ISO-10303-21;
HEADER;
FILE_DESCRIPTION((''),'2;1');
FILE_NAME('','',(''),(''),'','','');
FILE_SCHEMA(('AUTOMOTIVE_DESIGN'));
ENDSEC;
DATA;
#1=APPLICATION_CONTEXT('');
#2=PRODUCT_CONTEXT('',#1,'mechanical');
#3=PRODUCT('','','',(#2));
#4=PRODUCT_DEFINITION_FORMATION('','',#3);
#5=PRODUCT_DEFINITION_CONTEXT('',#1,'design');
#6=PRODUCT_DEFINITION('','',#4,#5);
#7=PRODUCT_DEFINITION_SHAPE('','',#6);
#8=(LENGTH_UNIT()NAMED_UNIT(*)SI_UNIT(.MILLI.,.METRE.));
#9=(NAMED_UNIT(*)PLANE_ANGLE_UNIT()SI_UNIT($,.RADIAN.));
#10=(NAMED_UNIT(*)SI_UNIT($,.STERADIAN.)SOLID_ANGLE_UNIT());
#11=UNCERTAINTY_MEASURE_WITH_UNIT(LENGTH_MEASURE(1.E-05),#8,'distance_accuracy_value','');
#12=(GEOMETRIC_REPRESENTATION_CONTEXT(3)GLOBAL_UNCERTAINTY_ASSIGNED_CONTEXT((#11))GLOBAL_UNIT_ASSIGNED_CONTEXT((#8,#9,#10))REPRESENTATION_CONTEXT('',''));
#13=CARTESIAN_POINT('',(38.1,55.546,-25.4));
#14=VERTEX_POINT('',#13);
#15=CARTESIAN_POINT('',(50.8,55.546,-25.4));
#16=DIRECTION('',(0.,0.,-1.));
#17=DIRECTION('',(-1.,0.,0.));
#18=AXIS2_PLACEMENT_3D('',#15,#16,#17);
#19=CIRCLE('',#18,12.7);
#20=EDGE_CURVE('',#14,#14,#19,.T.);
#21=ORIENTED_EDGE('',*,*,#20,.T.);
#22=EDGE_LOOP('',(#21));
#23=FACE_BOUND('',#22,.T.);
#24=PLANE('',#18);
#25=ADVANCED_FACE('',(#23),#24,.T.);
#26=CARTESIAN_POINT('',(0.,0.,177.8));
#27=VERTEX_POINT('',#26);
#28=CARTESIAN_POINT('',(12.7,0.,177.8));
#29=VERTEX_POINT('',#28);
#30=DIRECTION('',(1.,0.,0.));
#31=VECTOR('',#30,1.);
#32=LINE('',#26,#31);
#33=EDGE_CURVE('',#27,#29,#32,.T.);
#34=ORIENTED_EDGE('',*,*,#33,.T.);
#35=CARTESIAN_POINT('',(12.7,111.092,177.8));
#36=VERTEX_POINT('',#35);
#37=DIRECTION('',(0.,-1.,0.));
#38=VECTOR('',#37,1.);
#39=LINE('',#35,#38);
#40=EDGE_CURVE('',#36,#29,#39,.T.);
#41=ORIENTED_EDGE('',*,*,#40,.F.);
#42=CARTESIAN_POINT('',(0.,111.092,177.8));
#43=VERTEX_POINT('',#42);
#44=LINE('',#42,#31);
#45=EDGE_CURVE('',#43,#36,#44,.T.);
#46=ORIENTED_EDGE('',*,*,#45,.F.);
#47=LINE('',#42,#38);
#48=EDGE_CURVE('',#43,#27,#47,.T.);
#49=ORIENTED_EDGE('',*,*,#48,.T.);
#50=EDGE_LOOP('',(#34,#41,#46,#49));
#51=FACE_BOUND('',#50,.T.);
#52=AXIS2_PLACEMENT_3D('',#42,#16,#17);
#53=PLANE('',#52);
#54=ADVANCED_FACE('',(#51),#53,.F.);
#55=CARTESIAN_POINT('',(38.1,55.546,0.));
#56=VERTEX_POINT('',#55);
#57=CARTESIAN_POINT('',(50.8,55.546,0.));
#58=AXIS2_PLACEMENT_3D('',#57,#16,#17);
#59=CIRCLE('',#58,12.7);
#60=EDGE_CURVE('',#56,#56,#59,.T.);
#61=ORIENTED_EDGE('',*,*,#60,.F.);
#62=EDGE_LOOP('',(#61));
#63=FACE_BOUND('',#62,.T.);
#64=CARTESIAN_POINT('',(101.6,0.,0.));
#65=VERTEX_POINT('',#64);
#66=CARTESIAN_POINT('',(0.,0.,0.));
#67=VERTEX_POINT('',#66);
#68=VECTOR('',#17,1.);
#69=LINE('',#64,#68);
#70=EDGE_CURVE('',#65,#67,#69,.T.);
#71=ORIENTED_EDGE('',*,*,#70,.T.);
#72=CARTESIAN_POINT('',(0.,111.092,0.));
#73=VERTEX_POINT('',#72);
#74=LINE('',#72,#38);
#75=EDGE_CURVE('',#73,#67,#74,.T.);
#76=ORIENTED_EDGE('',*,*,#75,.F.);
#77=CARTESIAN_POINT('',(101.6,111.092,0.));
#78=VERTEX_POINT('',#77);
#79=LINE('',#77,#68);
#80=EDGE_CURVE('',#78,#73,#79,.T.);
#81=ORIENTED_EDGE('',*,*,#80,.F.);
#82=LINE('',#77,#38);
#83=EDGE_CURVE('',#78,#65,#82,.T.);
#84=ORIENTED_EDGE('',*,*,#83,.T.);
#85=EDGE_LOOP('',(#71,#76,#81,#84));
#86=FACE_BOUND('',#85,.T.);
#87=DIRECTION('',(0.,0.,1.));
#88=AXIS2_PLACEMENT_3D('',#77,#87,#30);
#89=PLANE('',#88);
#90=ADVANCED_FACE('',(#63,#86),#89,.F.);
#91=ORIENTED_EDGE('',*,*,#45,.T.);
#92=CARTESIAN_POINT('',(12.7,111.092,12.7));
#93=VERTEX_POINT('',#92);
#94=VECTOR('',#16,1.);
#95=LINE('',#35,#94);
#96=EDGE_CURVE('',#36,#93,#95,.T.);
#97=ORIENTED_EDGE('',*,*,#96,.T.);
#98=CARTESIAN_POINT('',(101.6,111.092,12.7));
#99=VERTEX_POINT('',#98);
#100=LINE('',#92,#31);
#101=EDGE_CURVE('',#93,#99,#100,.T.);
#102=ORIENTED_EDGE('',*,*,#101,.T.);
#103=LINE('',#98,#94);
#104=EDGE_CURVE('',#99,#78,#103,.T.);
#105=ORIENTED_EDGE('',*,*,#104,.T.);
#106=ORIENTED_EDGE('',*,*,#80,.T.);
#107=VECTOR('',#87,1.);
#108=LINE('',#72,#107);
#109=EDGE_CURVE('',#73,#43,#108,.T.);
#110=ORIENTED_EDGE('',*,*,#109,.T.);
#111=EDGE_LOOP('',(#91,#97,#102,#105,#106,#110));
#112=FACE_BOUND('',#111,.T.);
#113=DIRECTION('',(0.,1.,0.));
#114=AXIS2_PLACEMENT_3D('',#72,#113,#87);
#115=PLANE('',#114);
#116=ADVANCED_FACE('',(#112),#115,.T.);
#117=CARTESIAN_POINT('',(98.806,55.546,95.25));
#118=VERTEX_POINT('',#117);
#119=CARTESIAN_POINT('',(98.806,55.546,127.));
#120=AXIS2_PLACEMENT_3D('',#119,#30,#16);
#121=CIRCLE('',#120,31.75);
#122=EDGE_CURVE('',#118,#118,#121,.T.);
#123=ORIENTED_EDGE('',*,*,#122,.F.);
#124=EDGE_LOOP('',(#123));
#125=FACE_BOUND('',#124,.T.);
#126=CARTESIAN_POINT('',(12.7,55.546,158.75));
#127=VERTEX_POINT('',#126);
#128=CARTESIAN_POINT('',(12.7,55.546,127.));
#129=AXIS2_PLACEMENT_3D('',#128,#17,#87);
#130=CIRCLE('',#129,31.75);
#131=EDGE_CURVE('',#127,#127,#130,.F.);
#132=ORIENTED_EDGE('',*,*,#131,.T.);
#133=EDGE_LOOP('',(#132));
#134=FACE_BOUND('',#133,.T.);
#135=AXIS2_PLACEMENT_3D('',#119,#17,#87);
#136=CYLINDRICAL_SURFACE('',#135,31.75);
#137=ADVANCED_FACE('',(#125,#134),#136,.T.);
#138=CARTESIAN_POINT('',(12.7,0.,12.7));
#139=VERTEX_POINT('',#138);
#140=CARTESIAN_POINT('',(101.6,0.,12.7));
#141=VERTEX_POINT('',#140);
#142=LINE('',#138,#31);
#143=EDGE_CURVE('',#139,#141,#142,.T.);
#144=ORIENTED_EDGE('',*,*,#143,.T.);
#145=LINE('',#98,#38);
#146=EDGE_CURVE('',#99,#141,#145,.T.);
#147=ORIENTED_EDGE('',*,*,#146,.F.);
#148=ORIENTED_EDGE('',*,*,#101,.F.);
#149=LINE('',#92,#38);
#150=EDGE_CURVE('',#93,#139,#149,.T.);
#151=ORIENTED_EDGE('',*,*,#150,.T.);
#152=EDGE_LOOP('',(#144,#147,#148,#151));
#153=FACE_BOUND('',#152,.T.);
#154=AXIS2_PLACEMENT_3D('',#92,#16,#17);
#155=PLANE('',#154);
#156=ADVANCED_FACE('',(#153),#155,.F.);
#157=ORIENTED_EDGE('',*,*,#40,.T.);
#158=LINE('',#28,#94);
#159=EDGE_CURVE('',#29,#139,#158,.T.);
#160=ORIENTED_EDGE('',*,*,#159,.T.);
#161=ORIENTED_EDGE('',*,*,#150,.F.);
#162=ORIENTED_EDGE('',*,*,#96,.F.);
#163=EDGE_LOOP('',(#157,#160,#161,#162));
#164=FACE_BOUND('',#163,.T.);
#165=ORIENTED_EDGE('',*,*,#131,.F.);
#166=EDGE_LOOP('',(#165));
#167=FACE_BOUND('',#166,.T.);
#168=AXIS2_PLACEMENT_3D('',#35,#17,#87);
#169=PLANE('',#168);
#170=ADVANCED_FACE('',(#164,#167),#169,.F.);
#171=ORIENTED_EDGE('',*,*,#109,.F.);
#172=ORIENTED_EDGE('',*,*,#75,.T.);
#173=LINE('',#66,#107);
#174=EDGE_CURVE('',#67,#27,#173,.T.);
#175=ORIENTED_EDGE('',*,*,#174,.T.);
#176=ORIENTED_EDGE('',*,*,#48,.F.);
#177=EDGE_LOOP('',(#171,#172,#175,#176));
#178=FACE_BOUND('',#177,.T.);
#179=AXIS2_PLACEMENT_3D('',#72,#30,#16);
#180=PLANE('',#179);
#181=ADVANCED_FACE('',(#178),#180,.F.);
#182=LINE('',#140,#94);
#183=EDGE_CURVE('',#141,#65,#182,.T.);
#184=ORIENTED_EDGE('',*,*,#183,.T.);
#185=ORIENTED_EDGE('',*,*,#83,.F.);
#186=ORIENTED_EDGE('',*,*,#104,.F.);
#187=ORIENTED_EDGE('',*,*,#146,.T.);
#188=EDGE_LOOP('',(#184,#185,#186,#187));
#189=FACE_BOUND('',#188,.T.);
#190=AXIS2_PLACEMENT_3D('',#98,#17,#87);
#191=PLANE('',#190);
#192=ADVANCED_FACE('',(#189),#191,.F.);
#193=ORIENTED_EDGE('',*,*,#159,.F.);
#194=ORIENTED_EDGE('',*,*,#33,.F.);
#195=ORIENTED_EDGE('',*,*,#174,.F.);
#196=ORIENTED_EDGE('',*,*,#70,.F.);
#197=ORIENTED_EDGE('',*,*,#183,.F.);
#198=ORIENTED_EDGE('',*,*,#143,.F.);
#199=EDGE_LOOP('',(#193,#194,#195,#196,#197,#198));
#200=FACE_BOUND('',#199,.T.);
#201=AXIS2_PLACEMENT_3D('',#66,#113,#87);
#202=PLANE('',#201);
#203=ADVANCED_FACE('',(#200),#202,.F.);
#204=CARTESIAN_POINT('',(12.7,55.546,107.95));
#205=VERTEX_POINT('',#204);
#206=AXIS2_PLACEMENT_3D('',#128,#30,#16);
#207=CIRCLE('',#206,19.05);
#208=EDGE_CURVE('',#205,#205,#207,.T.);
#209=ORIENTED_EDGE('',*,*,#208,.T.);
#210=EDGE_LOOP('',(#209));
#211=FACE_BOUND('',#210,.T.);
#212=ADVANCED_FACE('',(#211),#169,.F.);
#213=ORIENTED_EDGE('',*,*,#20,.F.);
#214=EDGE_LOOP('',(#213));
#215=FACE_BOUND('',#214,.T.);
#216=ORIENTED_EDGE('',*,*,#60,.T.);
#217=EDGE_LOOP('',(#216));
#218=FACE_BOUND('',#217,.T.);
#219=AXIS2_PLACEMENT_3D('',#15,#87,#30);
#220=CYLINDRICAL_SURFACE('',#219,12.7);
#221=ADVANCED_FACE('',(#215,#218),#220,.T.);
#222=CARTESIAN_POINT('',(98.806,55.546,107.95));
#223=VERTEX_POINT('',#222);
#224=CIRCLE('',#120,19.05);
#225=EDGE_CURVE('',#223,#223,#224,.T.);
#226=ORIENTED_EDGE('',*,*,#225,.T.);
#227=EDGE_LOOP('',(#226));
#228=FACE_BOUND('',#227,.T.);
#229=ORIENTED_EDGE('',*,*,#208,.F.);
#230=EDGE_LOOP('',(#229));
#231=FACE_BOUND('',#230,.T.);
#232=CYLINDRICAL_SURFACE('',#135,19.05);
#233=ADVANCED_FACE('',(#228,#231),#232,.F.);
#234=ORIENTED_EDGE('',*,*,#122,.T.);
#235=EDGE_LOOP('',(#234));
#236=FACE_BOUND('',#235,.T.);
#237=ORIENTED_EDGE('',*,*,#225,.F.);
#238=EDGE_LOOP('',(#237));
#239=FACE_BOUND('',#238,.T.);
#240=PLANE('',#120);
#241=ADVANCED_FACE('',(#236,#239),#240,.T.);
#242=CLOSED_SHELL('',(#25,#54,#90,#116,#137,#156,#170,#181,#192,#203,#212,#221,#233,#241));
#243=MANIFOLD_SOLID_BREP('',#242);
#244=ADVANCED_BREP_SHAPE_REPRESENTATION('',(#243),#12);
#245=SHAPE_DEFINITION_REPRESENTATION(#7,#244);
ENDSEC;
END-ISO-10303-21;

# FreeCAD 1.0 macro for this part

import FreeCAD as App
import Part
import Sketcher
Q = App.Units.Quantity

doc = App.newDocument("Part")
body = doc.addObject("PartDesign::Body", "Body")

sketch1 = doc.addObject("Sketcher::SketchObject", "Sketch")
body.addObject(sketch1)
sketch1.AttachmentSupport = (doc.XZ_Plane, [""])
sketch1.MapMode = "FlatFace"
sketch1.addGeometry(Part.LineSegment(App.Vector(101.6, 0, 0), App.Vector(0, 0, 0)), False)
sketch1.addGeometry(Part.LineSegment(App.Vector(0, 0, 0), App.Vector(0, 177.8, 0)), False)
sketch1.addGeometry(Part.LineSegment(App.Vector(0, 177.8, 0), App.Vector(12.7, 177.8, 0)), False)
sketch1.addGeometry(Part.LineSegment(App.Vector(12.7, 177.8, 0), App.Vector(12.7, 12.7, 0)), False)
sketch1.addGeometry(Part.LineSegment(App.Vector(12.7, 12.7, 0), App.Vector(101.6, 12.7, 0)), False)
sketch1.addGeometry(Part.LineSegment(App.Vector(101.6, 12.7, 0), App.Vector(101.6, 0, 0)), False)
sketch1.addConstraint(Sketcher.Constraint("Coincident", 0, 2, 1, 1))
sketch1.addConstraint(Sketcher.Constraint("Coincident", 1, 2, 2, 1))
sketch1.addConstraint(Sketcher.Constraint("Coincident", 2, 2, 3, 1))
sketch1.addConstraint(Sketcher.Constraint("Coincident", 3, 2, 4, 1))
sketch1.addConstraint(Sketcher.Constraint("Coincident", 4, 2, 5, 1))
sketch1.addConstraint(Sketcher.Constraint("Coincident", 5, 2, 0, 1))
sketch1.addConstraint(Sketcher.Constraint("Horizontal", 0))
sketch1.addConstraint(Sketcher.Constraint("Vertical", 1))
sketch1.addConstraint(Sketcher.Constraint("Horizontal", 2))
sketch1.addConstraint(Sketcher.Constraint("Vertical", 3))
sketch1.addConstraint(Sketcher.Constraint("Horizontal", 4))
sketch1.addConstraint(Sketcher.Constraint("Vertical", 5))
sketch1.addConstraint(Sketcher.Constraint("Coincident", 0, 2, -1, 1))
sketch1.addConstraint(Sketcher.Constraint("Equal", 2, 5))
sketch1.addConstraint(Sketcher.Constraint("DistanceX", 0, 2, 0, 1, Q("4 in")))
sketch1.addConstraint(Sketcher.Constraint("DistanceY", 1, 1, 1, 2, Q("7 in")))
sketch1.addConstraint(Sketcher.Constraint("DistanceX", 2, 1, 2, 2, Q("0.5 in")))
pad1 = doc.addObject("PartDesign::Pad", "Pad")
body.addObject(pad1)
pad1.Profile = sketch1
pad1.Length = 111.092
pad1.Reversed = True

sketch2 = doc.addObject("Sketcher::SketchObject", "Sketch001")
body.addObject(sketch2)
sketch2.AttachmentSupport = (doc.XY_Plane, [""])
sketch2.MapMode = "FlatFace"
sketch2.addGeometry(Part.Circle(App.Vector(50.8, 55.546, 0), App.Vector(0, 0, 1), 12.7), False)
sketch2.addConstraint(Sketcher.Constraint("Diameter", 0, Q("1 in")))
sketch2.addConstraint(Sketcher.Constraint("DistanceX", -1, 1, 0, 3, Q("2 in")))
sketch2.addConstraint(Sketcher.Constraint("DistanceY", -1, 1, 0, 3, Q("55.546 mm")))
pad2 = doc.addObject("PartDesign::Pad", "Pad001")
body.addObject(pad2)
pad2.Profile = sketch2
pad2.Length = Q("1 in")
pad2.Reversed = True

sketch3 = doc.addObject("Sketcher::SketchObject", "Sketch002")
body.addObject(sketch3)
sketch3.AttachmentSupport = (doc.YZ_Plane, [""])
sketch3.MapMode = "FlatFace"
sketch3.AttachmentOffset = App.Placement(App.Vector(0, 0, 0.5 * 25.4), App.Rotation())
sketch3.addGeometry(Part.Circle(App.Vector(55.546, 127, 0), App.Vector(0, 0, 1), 31.75), False)
sketch3.addGeometry(Part.Circle(App.Vector(55.546, 127, 0), App.Vector(0, 0, 1), 19.05), False)
sketch3.addConstraint(Sketcher.Constraint("Coincident", 1, 3, 0, 3))
sketch3.addConstraint(Sketcher.Constraint("Diameter", 0, Q("2.5 in")))
sketch3.addConstraint(Sketcher.Constraint("Diameter", 1, Q("1.5 in")))
sketch3.addConstraint(Sketcher.Constraint("DistanceY", -1, 1, 0, 3, Q("5 in")))
sketch3.addConstraint(Sketcher.Constraint("DistanceX", -1, 1, 0, 3, Q("55.546 mm")))
pad3 = doc.addObject("PartDesign::Pad", "Pad002")
body.addObject(pad3)
pad3.Profile = sketch3
pad3.Length = Q("3.39 in")

doc.recompute()
